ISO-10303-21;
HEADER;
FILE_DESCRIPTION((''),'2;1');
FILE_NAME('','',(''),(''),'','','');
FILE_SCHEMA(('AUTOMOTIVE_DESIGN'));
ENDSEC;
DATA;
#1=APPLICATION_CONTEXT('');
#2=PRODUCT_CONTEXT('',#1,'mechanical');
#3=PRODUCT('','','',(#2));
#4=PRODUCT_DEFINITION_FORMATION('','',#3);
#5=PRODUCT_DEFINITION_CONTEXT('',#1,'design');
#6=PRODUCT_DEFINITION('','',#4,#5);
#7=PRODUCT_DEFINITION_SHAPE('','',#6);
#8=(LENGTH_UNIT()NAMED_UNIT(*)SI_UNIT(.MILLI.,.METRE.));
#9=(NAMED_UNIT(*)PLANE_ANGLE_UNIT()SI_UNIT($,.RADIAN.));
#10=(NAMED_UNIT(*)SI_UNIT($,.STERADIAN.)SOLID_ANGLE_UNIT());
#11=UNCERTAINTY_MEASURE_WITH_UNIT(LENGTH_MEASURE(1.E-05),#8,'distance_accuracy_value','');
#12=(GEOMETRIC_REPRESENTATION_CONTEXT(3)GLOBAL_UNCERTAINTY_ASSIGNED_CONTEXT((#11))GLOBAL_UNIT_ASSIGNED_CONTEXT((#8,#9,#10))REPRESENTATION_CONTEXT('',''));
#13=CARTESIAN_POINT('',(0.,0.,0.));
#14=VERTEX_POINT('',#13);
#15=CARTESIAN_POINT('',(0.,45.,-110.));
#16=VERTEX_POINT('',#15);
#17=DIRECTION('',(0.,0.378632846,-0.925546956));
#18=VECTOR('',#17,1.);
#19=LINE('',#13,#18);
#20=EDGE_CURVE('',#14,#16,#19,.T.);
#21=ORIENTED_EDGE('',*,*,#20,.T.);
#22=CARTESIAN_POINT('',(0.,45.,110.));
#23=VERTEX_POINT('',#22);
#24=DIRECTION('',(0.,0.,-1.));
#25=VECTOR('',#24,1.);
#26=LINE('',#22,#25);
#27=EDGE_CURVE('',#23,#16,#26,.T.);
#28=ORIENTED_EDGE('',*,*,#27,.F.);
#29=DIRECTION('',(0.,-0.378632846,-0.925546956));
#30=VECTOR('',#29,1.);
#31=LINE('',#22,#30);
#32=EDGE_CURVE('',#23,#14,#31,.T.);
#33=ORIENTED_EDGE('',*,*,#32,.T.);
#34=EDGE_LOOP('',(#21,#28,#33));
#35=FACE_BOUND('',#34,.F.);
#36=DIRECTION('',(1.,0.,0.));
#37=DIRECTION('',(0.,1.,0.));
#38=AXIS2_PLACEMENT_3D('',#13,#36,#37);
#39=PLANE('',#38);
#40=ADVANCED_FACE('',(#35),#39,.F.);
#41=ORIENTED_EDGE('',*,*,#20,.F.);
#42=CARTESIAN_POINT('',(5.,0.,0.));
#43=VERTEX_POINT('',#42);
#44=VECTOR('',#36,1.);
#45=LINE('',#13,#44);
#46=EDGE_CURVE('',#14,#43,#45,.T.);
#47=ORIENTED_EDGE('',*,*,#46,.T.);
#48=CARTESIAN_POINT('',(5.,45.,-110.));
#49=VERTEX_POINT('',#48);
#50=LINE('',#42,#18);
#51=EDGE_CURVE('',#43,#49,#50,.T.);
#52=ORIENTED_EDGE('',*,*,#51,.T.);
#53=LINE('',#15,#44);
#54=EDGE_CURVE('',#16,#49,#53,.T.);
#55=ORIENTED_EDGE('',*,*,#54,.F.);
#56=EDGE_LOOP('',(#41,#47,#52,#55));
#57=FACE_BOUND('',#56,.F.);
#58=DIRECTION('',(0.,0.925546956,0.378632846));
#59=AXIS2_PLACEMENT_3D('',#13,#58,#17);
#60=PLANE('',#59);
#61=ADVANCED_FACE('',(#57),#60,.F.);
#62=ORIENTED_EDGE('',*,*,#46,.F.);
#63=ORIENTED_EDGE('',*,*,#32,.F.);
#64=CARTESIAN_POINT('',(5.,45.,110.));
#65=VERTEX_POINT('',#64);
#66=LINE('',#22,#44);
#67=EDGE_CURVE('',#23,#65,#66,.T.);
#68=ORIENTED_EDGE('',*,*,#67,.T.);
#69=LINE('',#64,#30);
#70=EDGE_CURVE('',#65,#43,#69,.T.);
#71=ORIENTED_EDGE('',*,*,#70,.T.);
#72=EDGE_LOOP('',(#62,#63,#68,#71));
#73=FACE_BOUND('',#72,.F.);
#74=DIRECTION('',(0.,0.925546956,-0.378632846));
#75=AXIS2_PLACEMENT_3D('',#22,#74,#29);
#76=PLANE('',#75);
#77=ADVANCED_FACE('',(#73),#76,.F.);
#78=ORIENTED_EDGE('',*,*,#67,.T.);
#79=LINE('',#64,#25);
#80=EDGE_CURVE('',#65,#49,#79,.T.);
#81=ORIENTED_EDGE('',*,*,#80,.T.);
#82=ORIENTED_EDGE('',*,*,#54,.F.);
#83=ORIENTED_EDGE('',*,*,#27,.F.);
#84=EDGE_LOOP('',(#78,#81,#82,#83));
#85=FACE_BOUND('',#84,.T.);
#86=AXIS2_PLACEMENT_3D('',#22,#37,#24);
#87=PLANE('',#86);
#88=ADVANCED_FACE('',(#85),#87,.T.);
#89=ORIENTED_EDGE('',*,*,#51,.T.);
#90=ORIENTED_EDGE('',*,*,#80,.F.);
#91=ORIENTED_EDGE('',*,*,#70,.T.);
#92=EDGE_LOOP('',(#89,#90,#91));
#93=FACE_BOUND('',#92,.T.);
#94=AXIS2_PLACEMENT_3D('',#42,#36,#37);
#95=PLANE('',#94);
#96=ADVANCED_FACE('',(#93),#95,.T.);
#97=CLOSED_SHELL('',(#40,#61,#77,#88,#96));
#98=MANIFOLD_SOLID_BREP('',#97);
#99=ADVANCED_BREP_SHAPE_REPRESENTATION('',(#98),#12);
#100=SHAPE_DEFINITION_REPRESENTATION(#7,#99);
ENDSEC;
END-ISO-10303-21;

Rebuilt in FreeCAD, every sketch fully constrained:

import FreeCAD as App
import Part
import Sketcher
from FreeCAD import Vector

doc = App.newDocument("Part")
params = doc.addObject("Spreadsheet::Sheet", "Params")
for row, (alias, value) in enumerate([
    ("sketch1_height", "220 mm"),
    ("pad1_length", "5 mm"),
], start=1):
    params.set(f"A{row}", alias)
    params.set(f"B{row}", "=" + value)
    params.setAlias(f"B{row}", alias)

body = doc.addObject("PartDesign::Body", "Body")

# Sketch on YZ plane
sketch1 = body.newObject("Sketcher::SketchObject", "Sketch")
sketch1.AttachmentSupport = (doc.getObject("YZ_Plane"), [""])
sketch1.MapMode = "FlatFace"
sketch1.addGeometry([
    Part.LineSegment(Vector(45, -110, 0), Vector(45, 110, 0)),
    Part.LineSegment(Vector(45, 110, 0), Vector(0, 0, 0)),
    Part.LineSegment(Vector(0, 0, 0), Vector(45, -110, 0)),
], False)
sketch1.addConstraint([
    Sketcher.Constraint("Coincident", 0, 2, 1, 1),
    Sketcher.Constraint("Coincident", 1, 2, 2, 1),
    Sketcher.Constraint("Coincident", 2, 2, 0, 1),
    Sketcher.Constraint("Vertical", 0),
    Sketcher.Constraint("Coincident", 1, 2, -1, 1),
    Sketcher.Constraint("Equal", 1, 2),
    Sketcher.Constraint("DistanceY", 0, 1, 0, 2, 220.0),
    Sketcher.Constraint("DistanceX", -1, 1, 0, 2, 45.0),
])
sketch1.setExpression("Constraints[6]", "Params.sketch1_height")
pad1 = body.newObject("PartDesign::Pad", "Pad")
pad1.Profile = sketch1
pad1.setExpression("Length", "Params.pad1_length")

doc.recompute()
